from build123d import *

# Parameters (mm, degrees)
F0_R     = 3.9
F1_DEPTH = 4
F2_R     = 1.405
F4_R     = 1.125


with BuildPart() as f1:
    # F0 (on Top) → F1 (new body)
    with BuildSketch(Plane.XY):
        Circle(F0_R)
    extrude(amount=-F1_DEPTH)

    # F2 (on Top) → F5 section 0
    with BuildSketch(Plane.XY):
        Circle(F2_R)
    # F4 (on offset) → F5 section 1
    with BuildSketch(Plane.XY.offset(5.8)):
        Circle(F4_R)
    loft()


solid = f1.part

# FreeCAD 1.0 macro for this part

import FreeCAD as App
import Part
import Sketcher

V = App.Vector

doc = App.newDocument("Part")
params = doc.addObject("Spreadsheet::Sheet", "Params")
for row, (alias, value) in enumerate([
    ("sketch1_diameter", "7.8 mm"),
    ("pad1_length", "4 mm"),
    ("sketch2_diameter", "2.81 mm"),
    ("sketch3_diameter", "2.25 mm"),
], start=1):
    params.set(f"A{row}", alias)
    params.set(f"B{row}", "=" + value)
    params.setAlias(f"B{row}", alias)

body = doc.addObject("PartDesign::Body", "Body")

sketch1 = body.newObject("Sketcher::SketchObject", "Sketch")
sketch1.AttachmentSupport = (doc.getObject("XY_Plane"), [""])
sketch1.MapMode = "FlatFace"
sketch1.addGeometry(Part.Circle(V(0, 0, 0), V(0, 0, 1), 3.9), False)
sketch1.addConstraint([
    Sketcher.Constraint("Coincident", 0, 3, -1, 1),
    Sketcher.Constraint("Diameter", 0, 7.8),
])
sketch1.setExpression("Constraints[1]", "Params.sketch1_diameter")
pad1 = body.newObject("PartDesign::Pad", "Pad")
pad1.Profile = sketch1
pad1.setExpression("Length", "Params.pad1_length")
pad1.Reversed = True

sketch2 = body.newObject("Sketcher::SketchObject", "Sketch001")
sketch2.AttachmentSupport = (doc.getObject("XY_Plane"), [""])
sketch2.MapMode = "FlatFace"
sketch2.addGeometry(Part.Circle(V(0, 0, 0), V(0, 0, 1), 1.4), False)
sketch2.addConstraint([
    Sketcher.Constraint("Coincident", 0, 3, -1, 1),
    Sketcher.Constraint("Diameter", 0, 2.81),
])
sketch2.setExpression("Constraints[1]", "Params.sketch2_diameter")

sketch3 = body.newObject("Sketcher::SketchObject", "Sketch002")
sketch3.AttachmentSupport = (doc.getObject("XY_Plane"), [""])
sketch3.MapMode = "FlatFace"
sketch3.AttachmentOffset = App.Placement(V(0, 0, 5.8), App.Rotation())
sketch3.addGeometry(Part.Circle(V(0, 0, 0), V(0, 0, 1), 1.1), False)
sketch3.addConstraint([
    Sketcher.Constraint("Coincident", 0, 3, -1, 1),
    Sketcher.Constraint("Diameter", 0, 2.25),
])
sketch3.setExpression("Constraints[1]", "Params.sketch3_diameter")

additiveloft = body.newObject("PartDesign::AdditiveLoft", "AdditiveLoft")
additiveloft.Profile = sketch2
additiveloft.Sections = [sketch3]

doc.recompute()
